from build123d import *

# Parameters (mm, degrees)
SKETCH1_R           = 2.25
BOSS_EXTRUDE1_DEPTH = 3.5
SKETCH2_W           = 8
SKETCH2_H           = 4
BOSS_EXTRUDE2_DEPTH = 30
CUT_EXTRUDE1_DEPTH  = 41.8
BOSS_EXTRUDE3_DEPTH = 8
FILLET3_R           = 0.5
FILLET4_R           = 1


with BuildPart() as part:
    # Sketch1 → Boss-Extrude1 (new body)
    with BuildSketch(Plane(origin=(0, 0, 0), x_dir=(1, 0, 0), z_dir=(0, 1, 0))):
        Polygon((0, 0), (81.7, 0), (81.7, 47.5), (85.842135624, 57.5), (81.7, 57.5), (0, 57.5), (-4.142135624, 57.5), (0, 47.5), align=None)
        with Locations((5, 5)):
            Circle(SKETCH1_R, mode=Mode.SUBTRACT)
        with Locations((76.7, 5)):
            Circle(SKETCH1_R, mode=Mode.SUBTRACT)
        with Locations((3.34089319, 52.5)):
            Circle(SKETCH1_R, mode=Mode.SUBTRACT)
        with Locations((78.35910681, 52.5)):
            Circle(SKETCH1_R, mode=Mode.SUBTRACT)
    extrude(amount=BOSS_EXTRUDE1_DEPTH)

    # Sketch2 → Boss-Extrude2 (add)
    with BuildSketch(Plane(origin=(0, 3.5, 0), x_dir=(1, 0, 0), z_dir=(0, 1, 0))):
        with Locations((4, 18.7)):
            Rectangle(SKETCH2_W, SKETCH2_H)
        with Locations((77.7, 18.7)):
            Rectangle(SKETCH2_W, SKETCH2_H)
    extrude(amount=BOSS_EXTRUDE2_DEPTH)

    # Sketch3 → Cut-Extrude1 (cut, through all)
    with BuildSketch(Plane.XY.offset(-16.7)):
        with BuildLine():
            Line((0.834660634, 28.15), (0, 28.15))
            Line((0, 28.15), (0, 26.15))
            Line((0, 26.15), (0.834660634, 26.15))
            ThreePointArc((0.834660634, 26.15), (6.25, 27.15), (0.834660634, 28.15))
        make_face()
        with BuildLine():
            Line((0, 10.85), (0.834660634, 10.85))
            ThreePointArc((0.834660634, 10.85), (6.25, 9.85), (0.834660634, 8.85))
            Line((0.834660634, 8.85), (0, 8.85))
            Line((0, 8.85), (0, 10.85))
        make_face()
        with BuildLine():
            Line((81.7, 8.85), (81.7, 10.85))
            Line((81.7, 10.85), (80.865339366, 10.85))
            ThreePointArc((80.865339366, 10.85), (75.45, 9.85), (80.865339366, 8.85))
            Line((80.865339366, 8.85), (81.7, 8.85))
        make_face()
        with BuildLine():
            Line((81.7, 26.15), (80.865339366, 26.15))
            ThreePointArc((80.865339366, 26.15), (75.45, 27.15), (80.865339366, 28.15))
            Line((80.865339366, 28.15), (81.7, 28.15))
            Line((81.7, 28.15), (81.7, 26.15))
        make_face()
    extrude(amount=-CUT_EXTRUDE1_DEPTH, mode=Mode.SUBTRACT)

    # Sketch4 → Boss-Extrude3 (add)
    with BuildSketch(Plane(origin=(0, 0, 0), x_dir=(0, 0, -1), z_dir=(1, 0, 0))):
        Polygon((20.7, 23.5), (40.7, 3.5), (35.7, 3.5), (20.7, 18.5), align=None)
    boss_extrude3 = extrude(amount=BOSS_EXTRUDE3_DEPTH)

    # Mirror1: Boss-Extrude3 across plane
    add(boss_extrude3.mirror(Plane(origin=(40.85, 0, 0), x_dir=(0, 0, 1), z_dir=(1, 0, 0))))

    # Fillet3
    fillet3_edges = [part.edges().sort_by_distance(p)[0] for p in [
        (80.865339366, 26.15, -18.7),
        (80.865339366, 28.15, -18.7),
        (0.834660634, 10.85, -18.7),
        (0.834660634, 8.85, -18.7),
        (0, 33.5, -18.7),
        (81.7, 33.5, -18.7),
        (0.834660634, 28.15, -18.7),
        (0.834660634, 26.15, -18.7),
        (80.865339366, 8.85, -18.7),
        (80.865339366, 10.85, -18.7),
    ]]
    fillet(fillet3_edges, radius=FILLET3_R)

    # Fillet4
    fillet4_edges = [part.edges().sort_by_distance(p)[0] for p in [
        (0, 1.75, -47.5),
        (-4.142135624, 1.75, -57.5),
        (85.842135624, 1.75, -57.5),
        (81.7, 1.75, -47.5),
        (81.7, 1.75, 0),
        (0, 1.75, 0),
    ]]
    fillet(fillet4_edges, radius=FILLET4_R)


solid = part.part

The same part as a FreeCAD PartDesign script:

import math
import FreeCAD as App
import Part
import Sketcher
Q = App.Units.Quantity


def edges_at(feature, points):
    """Names of the edges that pass closest to the given points."""
    edges = feature.Shape.Edges
    near = lambda p: min(range(len(edges)), key=lambda i: edges[i].distToShape(Part.Vertex(*p))[0])
    return sorted({f"Edge{near(p) + 1}" for p in points})


def add_polygon(sketch, points):
    """Adds a closed chain of lines whose ends are joined by coincident constraints."""
    first, n = sketch.GeometryCount, len(points)
    for a, b in zip(points, points[1:] + points[:1]):
        sketch.addGeometry(Part.LineSegment(App.Vector(*a, 0), App.Vector(*b, 0)), False)
    for i in range(n):
        sketch.addConstraint(Sketcher.Constraint("Coincident", first + i, 2, first + (i + 1) % n, 1))

doc = App.newDocument("Part")
body = doc.addObject("PartDesign::Body", "Body")

# Sketch on XZ plane
sketch1 = doc.addObject("Sketcher::SketchObject", "Sketch")
body.addObject(sketch1)
sketch1.AttachmentSupport = (doc.XZ_Plane, [""])
sketch1.MapMode = "FlatFace"
add_polygon(sketch1, [(0, 0), (81.7, 0), (81.7, -47.5), (85.8, -57.5), (-4.1, -57.5), (0, -47.5)])  # lines 0-5
sketch1.addGeometry(Part.Circle(App.Vector(5, -5, 0), App.Vector(0, 0, 1), 2.2), False)  # 6
sketch1.addGeometry(Part.Circle(App.Vector(76.7, -5, 0), App.Vector(0, 0, 1), 2.2), False)  # 7
sketch1.addGeometry(Part.Circle(App.Vector(3.3, -52.5, 0), App.Vector(0, 0, 1), 2.2), False)  # 8
sketch1.addGeometry(Part.Circle(App.Vector(78.4, -52.5, 0), App.Vector(0, 0, 1), 2.2), False)  # 9
sketch1.addConstraint([
    Sketcher.Constraint("Horizontal", 0),
    Sketcher.Constraint("Vertical", 1),
    Sketcher.Constraint("Horizontal", 3),
    Sketcher.Constraint("Vertical", 5),
    Sketcher.Constraint("Coincident", 5, 2, -1, 1),
    Sketcher.Constraint("Equal", 6, 7),
    Sketcher.Constraint("Equal", 7, 8),
    Sketcher.Constraint("Equal", 8, 9),
    Sketcher.Constraint("Horizontal", 6, 3, 7, 3),
    Sketcher.Constraint("Horizontal", 8, 3, 9, 3),
    Sketcher.Constraint("Horizontal", 1, 2, 4, 2),
    Sketcher.Constraint("Equal", 2, 4),
    Sketcher.Constraint("Diameter", 6, Q("4.5 mm")),
    Sketcher.Constraint("DistanceX", 0, 1, 0, 2, Q("81.7 mm")),
    Sketcher.Constraint("DistanceY", 1, 2, 1, 1, Q("47.5 mm")),
    Sketcher.Constraint("DistanceX", -1, 1, 6, 3, Q("5 mm")),
    Sketcher.Constraint("DistanceY", 6, 3, -1, 1, Q("5 mm")),
    Sketcher.Constraint("Angle", 2, Q("-67.5 deg")),
    Sketcher.Constraint("DistanceX", 7, 3, 0, 2, Q("5 mm")),
    Sketcher.Constraint("DistanceY", 9, 3, 1, 2, Q("5 mm")),
    Sketcher.Constraint("DistanceY", 2, 2, 9, 3, Q("5 mm")),
    Sketcher.Constraint("DistanceX", 9, 3, 2, 2, Q("7.483029 mm")),
    Sketcher.Constraint("DistanceX", 3, 2, 8, 3, Q("7.483029 mm")),
])
pad1 = doc.addObject("PartDesign::Pad", "Pad")
body.addObject(pad1)
pad1.Profile = sketch1
pad1.Length = 3.5
pad1.Reversed = True

# Sketch on XZ plane
sketch2 = doc.addObject("Sketcher::SketchObject", "Sketch001")
body.addObject(sketch2)
sketch2.AttachmentSupport = (doc.XZ_Plane, [""])
sketch2.MapMode = "FlatFace"
sketch2.AttachmentOffset = App.Placement(App.Vector(0, 0, -3.5), App.Rotation())
add_polygon(sketch2, [(0, -20.7), (0, -16.7), (8, -16.7), (8, -20.7)])  # lines 0-3
add_polygon(sketch2, [(73.7, -20.7), (73.7, -16.7), (81.7, -16.7), (81.7, -20.7)])  # lines 4-7
sketch2.addConstraint([
    Sketcher.Constraint("Vertical", 0),
    Sketcher.Constraint("Horizontal", 1),
    Sketcher.Constraint("Vertical", 2),
    Sketcher.Constraint("Horizontal", 3),
    Sketcher.Constraint("Vertical", 4),
    Sketcher.Constraint("Horizontal", 5),
    Sketcher.Constraint("Vertical", 6),
    Sketcher.Constraint("Horizontal", 7),
    Sketcher.Constraint("PointOnObject", 0, 2, -2),
    Sketcher.Constraint("Horizontal", 1, 2, 4, 2),
    Sketcher.Constraint("Horizontal", 3, 2, 6, 2),
    Sketcher.Constraint("Equal", 3, 5),
    Sketcher.Constraint("DistanceX", 1, 1, 1, 2, Q("8 mm")),
    Sketcher.Constraint("DistanceY", 0, 1, 0, 2, Q("4 mm")),
    Sketcher.Constraint("DistanceY", 0, 2, -1, 1, Q("16.7 mm")),
    Sketcher.Constraint("DistanceX", -1, 1, 4, 2, Q("73.7 mm")),
])
pad2 = doc.addObject("PartDesign::Pad", "Pad001")
body.addObject(pad2)
pad2.Profile = sketch2
pad2.Length = 30
pad2.Reversed = True

# Sketch on XY plane
sketch3 = doc.addObject("Sketcher::SketchObject", "Sketch002")
body.addObject(sketch3)
sketch3.AttachmentSupport = (doc.XY_Plane, [""])
sketch3.MapMode = "FlatFace"
sketch3.AttachmentOffset = App.Placement(App.Vector(0, 0, -16.7), App.Rotation())
sketch3.addGeometry([
    Part.LineSegment(App.Vector(0.8, 28.1, 0), App.Vector(0, 28.1, 0)),  # 0
    Part.LineSegment(App.Vector(0, 28.1, 0), App.Vector(0, 26.1, 0)),  # 1
    Part.LineSegment(App.Vector(0, 26.1, 0), App.Vector(0.8, 26.1, 0)),  # 2
    Part.ArcOfCircle(Part.Circle(App.Vector(3.5, 27.1, 0), App.Vector(0, 0, 1), 2.8), math.radians(-159), math.radians(159)),  # 3
    Part.LineSegment(App.Vector(0.8, 10.8, 0), App.Vector(0, 10.8, 0)),  # 4
    Part.LineSegment(App.Vector(0, 10.8, 0), App.Vector(0, 8.8, 0)),  # 5
    Part.LineSegment(App.Vector(0, 8.8, 0), App.Vector(0.8, 8.8, 0)),  # 6
    Part.ArcOfCircle(Part.Circle(App.Vector(3.5, 9.8, 0), App.Vector(0, 0, 1), 2.8), math.radians(-159), math.radians(159)),  # 7
    Part.LineSegment(App.Vector(81.7, 8.8, 0), App.Vector(81.7, 10.8, 0)),  # 8
    Part.LineSegment(App.Vector(81.7, 10.8, 0), App.Vector(80.9, 10.8, 0)),  # 9
    Part.ArcOfCircle(Part.Circle(App.Vector(78.2, 9.8, 0), App.Vector(0, 0, 1), 2.8), math.radians(21), math.radians(339)),  # 10
    Part.LineSegment(App.Vector(80.9, 8.8, 0), App.Vector(81.7, 8.8, 0)),  # 11
    Part.LineSegment(App.Vector(80.9, 26.1, 0), App.Vector(81.7, 26.1, 0)),  # 12
    Part.LineSegment(App.Vector(81.7, 26.1, 0), App.Vector(81.7, 28.1, 0)),  # 13
    Part.LineSegment(App.Vector(81.7, 28.1, 0), App.Vector(80.9, 28.1, 0)),  # 14
    Part.ArcOfCircle(Part.Circle(App.Vector(78.2, 27.1, 0), App.Vector(0, 0, 1), 2.8), math.radians(21), math.radians(339)),  # 15
], False)
sketch3.addConstraint([
    Sketcher.Constraint("Coincident", 0, 2, 1, 1),
    Sketcher.Constraint("Coincident", 1, 2, 2, 1),
    Sketcher.Constraint("Coincident", 2, 2, 3, 1),
    Sketcher.Constraint("Coincident", 3, 2, 0, 1),
    Sketcher.Constraint("Coincident", 4, 2, 5, 1),
    Sketcher.Constraint("Coincident", 5, 2, 6, 1),
    Sketcher.Constraint("Coincident", 6, 2, 7, 1),
    Sketcher.Constraint("Coincident", 7, 2, 4, 1),
    Sketcher.Constraint("Coincident", 8, 2, 9, 1),
    Sketcher.Constraint("Coincident", 9, 2, 10, 1),
    Sketcher.Constraint("Coincident", 10, 2, 11, 1),
    Sketcher.Constraint("Coincident", 11, 2, 8, 1),
    Sketcher.Constraint("Coincident", 12, 2, 13, 1),
    Sketcher.Constraint("Coincident", 13, 2, 14, 1),
    Sketcher.Constraint("Coincident", 14, 2, 15, 1),
    Sketcher.Constraint("Coincident", 15, 2, 12, 1),
    Sketcher.Constraint("Horizontal", 0),
    Sketcher.Constraint("Vertical", 1),
    Sketcher.Constraint("Horizontal", 2),
    Sketcher.Constraint("Horizontal", 4),
    Sketcher.Constraint("Vertical", 5),
    Sketcher.Constraint("Horizontal", 6),
    Sketcher.Constraint("Vertical", 8),
    Sketcher.Constraint("Horizontal", 9),
    Sketcher.Constraint("Horizontal", 11),
    Sketcher.Constraint("Horizontal", 12),
    Sketcher.Constraint("Vertical", 13),
    Sketcher.Constraint("Horizontal", 14),
    Sketcher.Constraint("Equal", 3, 7),
    Sketcher.Constraint("Equal", 7, 10),
    Sketcher.Constraint("Equal", 10, 15),
    Sketcher.Constraint("PointOnObject", 0, 2, -2),
    Sketcher.Constraint("PointOnObject", 4, 2, -2),
    Sketcher.Constraint("Horizontal", 7, 3, 10, 3),
    Sketcher.Constraint("Horizontal", 3, 3, 15, 3),
    Sketcher.Constraint("Horizontal", 7, 2, 8, 2),
    Sketcher.Constraint("Horizontal", 6, 2, 10, 2),
    Sketcher.Constraint("Horizontal", 2, 2, 12, 2),
    Sketcher.Constraint("Horizontal", 3, 2, 13, 2),
    Sketcher.Constraint("Vertical", 3, 3, 7, 3),
    Sketcher.Constraint("Vertical", 10, 3, 15, 3),
    Sketcher.Constraint("Vertical", 2, 2, 3, 2),
    Sketcher.Constraint("Vertical", 3, 2, 6, 2),
    Sketcher.Constraint("Vertical", 6, 2, 7, 2),
    Sketcher.Constraint("Vertical", 11, 2, 12, 2),
    Sketcher.Constraint("Equal", 6, 9),
    Sketcher.Constraint("Radius", 3, Q("2.8 mm")),
    Sketcher.Constraint("DistanceY", 1, 2, 1, 1, Q("2 mm")),
    Sketcher.Constraint("DistanceX", -1, 1, 8, 2, Q("81.7 mm")),
    Sketcher.Constraint("DistanceY", 7, 3, 3, 3, Q("17.3 mm")),
    Sketcher.Constraint("DistanceX", 7, 3, 10, 3, Q("74.8 mm")),
    Sketcher.Constraint("DistanceY", -1, 1, 3, 3, Q("27.15 mm")),
])
pocket1 = doc.addObject("PartDesign::Pocket", "Pocket")
body.addObject(pocket1)
pocket1.Profile = sketch3
pocket1.Type = "ThroughAll"

# Sketch on YZ plane
sketch4 = doc.addObject("Sketcher::SketchObject", "Sketch003")
body.addObject(sketch4)
sketch4.AttachmentSupport = (doc.YZ_Plane, [""])
sketch4.MapMode = "FlatFace"
add_polygon(sketch4, [(4, -41), (24, -21), (18, -21), (4, -36)])  # lines 0-3
sketch4.addConstraint([
    Sketcher.Constraint("Horizontal", 1),
    Sketcher.Constraint("Vertical", 3),
    Sketcher.Constraint("Parallel", 0, 2),
    Sketcher.Constraint("Equal", 1, 3),
    Sketcher.Constraint("DistanceX", 1, 2, 1, 1, Q("5 mm")),
    Sketcher.Constraint("DistanceX", 2, 2, 1, 2, Q("15 mm")),
    Sketcher.Constraint("DistanceX", -1, 1, 0, 2, Q("23.5 mm")),
    Sketcher.Constraint("DistanceY", 0, 2, -1, 1, Q("20.7 mm")),
])
pad3 = doc.addObject("PartDesign::Pad", "Pad002")
body.addObject(pad3)
pad3.Profile = sketch4
pad3.Length = 8
doc.recompute()

datumplane = doc.addObject("PartDesign::Plane", "DatumPlane")
body.addObject(datumplane)
datumplane.AttachmentSupport = (doc.YZ_Plane, [""])
datumplane.MapMode = "FlatFace"
datumplane.AttachmentOffset = App.Placement(App.Vector(0, 0, 40.85), App.Rotation())
mirrored = doc.addObject("PartDesign::Mirrored", "Mirrored")
body.addObject(mirrored)
mirrored.Originals = [pad3]
mirrored.MirrorPlane = (datumplane, [""])
body.Tip = mirrored
doc.recompute()

fillet = doc.addObject("PartDesign::Fillet", "Fillet")
body.addObject(fillet)
fillet.Base = (mirrored, edges_at(mirrored, [
    (80.865, 26.15, -18.7),
    (80.865, 28.15, -18.7),
    (0.835, 10.85, -18.7),
    (0.835, 8.85, -18.7),
    (0, 33.5, -18.7),
    (81.7, 33.5, -18.7),
    (0.835, 28.15, -18.7),
    (0.835, 26.15, -18.7),
    (80.865, 8.85, -18.7),
    (80.865, 10.85, -18.7),
]))
fillet.Radius = 0.5
doc.recompute()

fillet2 = doc.addObject("PartDesign::Fillet", "Fillet001")
body.addObject(fillet2)
fillet2.Base = (fillet, edges_at(fillet, [
    (0, 1.75, -47.5),
    (-4.142, 1.75, -57.5),
    (85.842, 1.75, -57.5),
    (81.7, 1.75, -47.5),
    (81.7, 1.75, 0),
    (0, 1.75, 0),
]))
fillet2.Radius = 1

doc.recompute()
